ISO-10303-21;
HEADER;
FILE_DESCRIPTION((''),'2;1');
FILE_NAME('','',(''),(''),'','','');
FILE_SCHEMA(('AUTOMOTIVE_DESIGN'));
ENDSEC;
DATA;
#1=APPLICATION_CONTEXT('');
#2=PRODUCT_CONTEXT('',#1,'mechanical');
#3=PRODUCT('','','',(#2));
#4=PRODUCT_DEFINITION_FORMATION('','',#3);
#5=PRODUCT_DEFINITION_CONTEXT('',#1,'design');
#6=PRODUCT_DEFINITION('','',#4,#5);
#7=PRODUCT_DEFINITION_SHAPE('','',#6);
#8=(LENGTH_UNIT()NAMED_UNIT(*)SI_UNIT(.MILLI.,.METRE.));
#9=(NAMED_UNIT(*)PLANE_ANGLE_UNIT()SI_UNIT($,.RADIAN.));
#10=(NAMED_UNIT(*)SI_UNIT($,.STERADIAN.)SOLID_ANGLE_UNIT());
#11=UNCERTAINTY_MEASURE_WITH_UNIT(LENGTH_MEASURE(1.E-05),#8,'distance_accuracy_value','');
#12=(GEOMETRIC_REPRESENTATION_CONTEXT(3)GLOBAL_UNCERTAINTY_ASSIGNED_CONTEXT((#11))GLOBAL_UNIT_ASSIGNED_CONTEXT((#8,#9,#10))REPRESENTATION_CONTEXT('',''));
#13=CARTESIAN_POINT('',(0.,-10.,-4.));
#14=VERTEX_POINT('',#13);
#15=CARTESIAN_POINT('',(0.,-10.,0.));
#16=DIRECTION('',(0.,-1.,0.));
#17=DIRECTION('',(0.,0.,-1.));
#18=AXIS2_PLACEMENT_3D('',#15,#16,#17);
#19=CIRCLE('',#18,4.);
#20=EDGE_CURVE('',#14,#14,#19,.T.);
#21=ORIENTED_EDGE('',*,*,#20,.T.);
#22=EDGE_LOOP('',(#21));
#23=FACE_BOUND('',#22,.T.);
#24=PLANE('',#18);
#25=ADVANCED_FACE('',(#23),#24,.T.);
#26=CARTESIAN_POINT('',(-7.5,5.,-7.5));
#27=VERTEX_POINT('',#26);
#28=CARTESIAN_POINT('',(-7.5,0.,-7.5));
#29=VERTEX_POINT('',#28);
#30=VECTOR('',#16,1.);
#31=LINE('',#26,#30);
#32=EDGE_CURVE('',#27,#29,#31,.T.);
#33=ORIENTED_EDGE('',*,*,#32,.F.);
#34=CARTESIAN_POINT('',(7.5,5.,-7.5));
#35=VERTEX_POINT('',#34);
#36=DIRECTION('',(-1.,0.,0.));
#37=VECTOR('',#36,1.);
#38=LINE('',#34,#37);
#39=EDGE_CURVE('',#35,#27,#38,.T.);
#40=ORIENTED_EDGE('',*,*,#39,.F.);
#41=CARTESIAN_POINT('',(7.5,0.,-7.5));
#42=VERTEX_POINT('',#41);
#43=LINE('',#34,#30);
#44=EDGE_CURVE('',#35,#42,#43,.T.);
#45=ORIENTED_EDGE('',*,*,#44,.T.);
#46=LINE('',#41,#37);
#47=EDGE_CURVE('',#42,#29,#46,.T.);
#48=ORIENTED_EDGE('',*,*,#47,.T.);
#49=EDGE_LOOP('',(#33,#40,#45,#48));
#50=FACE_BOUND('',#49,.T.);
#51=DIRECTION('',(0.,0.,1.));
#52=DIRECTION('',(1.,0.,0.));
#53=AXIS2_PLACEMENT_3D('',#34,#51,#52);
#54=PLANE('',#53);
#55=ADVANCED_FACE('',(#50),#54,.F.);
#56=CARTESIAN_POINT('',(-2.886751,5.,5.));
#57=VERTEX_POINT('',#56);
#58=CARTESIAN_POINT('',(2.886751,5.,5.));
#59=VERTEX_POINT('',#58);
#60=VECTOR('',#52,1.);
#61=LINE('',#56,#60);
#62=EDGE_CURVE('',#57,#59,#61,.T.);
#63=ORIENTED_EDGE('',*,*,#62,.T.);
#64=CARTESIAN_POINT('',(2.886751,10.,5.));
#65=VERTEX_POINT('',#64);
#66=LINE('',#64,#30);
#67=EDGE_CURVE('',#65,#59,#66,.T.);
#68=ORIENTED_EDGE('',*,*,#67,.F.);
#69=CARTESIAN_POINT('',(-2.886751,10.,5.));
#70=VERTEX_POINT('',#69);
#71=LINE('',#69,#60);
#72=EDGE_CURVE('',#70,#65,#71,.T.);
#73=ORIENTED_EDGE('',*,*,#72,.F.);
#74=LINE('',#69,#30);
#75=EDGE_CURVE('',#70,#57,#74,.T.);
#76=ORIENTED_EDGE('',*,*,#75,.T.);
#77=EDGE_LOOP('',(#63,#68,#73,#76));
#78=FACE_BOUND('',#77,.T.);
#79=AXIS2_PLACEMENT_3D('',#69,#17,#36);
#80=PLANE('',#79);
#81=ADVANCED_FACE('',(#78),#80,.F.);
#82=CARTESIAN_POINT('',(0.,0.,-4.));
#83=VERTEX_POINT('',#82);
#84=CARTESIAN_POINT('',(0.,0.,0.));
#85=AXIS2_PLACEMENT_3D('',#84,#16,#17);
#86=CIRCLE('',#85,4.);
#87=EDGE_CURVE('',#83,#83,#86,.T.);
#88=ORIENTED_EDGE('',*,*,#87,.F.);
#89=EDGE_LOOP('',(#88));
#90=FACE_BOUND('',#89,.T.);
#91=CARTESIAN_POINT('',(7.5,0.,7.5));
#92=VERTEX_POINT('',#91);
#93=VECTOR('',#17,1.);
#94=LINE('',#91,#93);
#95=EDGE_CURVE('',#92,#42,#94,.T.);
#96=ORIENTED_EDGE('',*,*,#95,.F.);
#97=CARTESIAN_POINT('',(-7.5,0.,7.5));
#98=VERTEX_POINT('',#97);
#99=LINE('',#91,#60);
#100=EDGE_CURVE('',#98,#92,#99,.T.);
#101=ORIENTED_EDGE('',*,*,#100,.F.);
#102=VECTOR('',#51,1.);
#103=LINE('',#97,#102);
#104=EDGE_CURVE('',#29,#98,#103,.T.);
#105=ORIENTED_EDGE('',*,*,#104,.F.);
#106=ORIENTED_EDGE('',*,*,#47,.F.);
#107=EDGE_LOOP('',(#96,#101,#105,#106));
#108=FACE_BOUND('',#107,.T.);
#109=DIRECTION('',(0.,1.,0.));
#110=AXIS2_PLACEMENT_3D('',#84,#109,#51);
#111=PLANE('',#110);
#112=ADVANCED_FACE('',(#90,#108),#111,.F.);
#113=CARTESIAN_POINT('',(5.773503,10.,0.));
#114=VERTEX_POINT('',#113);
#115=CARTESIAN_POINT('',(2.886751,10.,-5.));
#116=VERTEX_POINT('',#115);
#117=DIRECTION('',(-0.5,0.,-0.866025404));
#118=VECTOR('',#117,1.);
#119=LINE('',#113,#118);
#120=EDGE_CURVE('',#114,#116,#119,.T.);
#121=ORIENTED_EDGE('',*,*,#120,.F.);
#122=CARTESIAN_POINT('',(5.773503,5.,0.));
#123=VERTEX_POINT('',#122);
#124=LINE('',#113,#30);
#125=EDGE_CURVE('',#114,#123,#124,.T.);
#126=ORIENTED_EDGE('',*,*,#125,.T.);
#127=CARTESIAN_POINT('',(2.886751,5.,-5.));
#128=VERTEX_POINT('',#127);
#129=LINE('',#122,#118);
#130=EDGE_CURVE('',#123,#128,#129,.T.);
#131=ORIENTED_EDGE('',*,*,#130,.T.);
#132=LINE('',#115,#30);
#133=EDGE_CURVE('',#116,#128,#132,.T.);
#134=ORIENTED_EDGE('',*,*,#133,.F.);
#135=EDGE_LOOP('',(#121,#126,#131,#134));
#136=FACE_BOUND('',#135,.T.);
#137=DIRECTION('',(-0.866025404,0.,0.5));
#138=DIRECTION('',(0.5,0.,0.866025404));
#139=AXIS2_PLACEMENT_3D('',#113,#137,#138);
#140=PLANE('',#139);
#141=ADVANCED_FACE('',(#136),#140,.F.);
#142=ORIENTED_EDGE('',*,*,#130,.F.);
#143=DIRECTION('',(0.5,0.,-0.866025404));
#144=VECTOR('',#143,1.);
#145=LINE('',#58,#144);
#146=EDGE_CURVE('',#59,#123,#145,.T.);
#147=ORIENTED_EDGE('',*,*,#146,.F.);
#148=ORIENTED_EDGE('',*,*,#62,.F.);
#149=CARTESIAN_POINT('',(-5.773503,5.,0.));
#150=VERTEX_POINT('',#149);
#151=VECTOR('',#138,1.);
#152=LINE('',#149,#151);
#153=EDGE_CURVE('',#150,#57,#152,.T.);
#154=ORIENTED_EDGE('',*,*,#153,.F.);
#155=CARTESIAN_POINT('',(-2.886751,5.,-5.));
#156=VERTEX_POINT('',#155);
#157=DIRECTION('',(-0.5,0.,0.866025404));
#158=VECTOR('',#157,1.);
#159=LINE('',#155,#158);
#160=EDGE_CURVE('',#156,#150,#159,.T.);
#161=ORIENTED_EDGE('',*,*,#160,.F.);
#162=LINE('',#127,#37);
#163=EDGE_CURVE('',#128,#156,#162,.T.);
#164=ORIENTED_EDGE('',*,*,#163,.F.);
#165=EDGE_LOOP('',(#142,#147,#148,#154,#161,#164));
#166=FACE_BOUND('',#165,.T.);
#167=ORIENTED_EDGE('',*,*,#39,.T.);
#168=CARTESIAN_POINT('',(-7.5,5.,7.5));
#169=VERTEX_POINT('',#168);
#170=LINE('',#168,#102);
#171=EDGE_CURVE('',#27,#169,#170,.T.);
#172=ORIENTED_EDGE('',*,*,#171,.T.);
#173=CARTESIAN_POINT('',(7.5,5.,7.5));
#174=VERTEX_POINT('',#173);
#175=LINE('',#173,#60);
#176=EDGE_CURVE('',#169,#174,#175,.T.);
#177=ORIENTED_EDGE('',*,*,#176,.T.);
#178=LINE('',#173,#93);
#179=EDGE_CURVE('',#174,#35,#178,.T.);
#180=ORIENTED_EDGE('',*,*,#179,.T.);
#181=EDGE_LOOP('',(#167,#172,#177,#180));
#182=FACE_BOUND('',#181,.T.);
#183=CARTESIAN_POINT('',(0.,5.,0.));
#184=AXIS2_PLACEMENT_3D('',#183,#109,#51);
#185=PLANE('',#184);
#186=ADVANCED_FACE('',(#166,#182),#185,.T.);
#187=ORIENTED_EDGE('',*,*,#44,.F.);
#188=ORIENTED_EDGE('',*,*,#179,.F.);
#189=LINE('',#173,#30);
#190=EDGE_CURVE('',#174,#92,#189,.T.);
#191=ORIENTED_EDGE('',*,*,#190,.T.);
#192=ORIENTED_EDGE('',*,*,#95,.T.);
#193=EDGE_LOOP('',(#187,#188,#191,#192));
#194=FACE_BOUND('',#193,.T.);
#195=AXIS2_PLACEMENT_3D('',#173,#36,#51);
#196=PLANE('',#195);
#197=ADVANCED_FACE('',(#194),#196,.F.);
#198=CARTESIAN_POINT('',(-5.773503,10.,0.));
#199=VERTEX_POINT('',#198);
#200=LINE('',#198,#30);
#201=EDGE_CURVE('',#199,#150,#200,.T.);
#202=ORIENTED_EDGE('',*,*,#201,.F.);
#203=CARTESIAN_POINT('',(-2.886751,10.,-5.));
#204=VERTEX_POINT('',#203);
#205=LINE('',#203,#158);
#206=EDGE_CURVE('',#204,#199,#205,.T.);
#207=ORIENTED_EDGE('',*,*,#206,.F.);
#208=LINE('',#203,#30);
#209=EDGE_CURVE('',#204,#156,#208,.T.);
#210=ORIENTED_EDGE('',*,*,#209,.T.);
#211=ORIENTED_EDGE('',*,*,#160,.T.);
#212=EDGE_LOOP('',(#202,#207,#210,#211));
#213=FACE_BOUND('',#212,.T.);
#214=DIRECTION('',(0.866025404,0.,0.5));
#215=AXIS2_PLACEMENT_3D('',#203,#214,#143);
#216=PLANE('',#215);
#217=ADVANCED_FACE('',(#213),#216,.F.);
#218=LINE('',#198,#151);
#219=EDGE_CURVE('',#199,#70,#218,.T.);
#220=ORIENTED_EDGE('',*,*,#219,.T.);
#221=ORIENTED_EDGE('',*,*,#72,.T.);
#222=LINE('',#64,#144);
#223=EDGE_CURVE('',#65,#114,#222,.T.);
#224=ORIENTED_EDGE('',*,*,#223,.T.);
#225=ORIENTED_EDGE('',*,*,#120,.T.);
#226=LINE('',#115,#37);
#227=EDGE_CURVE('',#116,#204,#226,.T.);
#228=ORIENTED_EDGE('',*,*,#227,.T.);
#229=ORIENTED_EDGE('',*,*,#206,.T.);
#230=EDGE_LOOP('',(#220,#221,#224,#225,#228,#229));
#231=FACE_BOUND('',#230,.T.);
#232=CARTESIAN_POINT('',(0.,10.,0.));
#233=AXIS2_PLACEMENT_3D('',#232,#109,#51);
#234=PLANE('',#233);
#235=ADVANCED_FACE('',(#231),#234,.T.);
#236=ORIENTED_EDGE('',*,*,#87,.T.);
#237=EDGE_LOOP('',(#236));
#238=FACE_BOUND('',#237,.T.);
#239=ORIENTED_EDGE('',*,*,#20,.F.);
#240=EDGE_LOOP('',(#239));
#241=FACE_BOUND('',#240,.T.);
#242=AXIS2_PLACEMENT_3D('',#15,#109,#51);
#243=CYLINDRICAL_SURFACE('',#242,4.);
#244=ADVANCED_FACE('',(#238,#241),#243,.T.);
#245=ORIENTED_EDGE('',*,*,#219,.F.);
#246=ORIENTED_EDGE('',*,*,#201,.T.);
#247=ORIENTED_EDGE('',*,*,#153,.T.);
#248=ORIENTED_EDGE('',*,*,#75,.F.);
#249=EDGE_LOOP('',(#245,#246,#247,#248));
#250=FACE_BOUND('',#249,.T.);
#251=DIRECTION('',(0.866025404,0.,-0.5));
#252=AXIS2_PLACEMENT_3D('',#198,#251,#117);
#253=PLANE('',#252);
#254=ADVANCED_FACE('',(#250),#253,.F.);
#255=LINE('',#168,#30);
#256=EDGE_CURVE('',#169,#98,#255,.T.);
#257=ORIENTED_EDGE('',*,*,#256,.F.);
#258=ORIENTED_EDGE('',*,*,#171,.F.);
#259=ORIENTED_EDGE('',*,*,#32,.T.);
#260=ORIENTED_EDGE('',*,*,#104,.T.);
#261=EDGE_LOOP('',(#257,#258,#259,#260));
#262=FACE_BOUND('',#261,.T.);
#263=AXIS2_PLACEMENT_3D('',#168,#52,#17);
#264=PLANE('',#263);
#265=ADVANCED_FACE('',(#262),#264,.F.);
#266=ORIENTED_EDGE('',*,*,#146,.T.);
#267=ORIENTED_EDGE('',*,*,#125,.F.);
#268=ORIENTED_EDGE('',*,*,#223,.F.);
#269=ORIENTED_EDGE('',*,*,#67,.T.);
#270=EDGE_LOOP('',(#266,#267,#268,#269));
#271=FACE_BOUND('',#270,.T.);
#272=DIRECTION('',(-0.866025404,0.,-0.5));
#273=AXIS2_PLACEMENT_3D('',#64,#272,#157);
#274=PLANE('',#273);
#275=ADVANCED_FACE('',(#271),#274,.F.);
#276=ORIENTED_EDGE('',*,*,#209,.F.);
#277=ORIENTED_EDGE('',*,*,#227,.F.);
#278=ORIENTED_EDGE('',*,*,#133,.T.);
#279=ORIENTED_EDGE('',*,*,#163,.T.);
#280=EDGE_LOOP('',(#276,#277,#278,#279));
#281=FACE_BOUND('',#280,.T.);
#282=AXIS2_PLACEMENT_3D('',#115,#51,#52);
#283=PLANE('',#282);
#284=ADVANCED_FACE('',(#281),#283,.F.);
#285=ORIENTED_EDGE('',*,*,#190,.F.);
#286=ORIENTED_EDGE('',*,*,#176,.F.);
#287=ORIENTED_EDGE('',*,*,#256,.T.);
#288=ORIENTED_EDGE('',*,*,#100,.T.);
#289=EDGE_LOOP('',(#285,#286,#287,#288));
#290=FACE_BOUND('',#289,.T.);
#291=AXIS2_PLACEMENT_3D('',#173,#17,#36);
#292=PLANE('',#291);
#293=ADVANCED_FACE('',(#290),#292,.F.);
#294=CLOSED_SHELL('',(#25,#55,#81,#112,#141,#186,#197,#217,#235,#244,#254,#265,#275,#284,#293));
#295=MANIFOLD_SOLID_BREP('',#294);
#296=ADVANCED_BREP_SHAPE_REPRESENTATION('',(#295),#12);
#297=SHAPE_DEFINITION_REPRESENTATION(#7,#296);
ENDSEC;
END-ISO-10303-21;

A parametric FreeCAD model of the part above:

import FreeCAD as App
import Part
import Sketcher
Q = App.Units.Quantity

doc = App.newDocument("Part")
body = doc.addObject("PartDesign::Body", "Body")

# Sketch on XZ plane
sketch1 = body.newObject("Sketcher::SketchObject", "Sketch")
sketch1.AttachmentSupport = (doc.getObject("XZ_Plane"), [""])
sketch1.MapMode = "FlatFace"
sketch1.addGeometry([
    Part.LineSegment(App.Vector(-8, -8, 0), App.Vector(-8, 8, 0)),
    Part.LineSegment(App.Vector(-8, 8, 0), App.Vector(8, 8, 0)),
    Part.LineSegment(App.Vector(8, 8, 0), App.Vector(8, -8, 0)),
    Part.LineSegment(App.Vector(8, -8, 0), App.Vector(-8, -8, 0)),
], False)
sketch1.addConstraint([
    Sketcher.Constraint("Coincident", 0, 2, 1, 1),
    Sketcher.Constraint("Coincident", 1, 2, 2, 1),
    Sketcher.Constraint("Coincident", 2, 2, 3, 1),
    Sketcher.Constraint("Coincident", 3, 2, 0, 1),
    Sketcher.Constraint("Vertical", 0),
    Sketcher.Constraint("Horizontal", 1),
    Sketcher.Constraint("Vertical", 2),
    Sketcher.Constraint("Horizontal", 3),
    Sketcher.Constraint("Symmetric", 0, 2, 2, 2, -1, 1),
    Sketcher.Constraint("Equal", 3, 0),
    Sketcher.Constraint("DistanceX", 1, 1, 1, 2, Q("15 mm")),
])
pad1 = body.newObject("PartDesign::Pad", "Pad")
pad1.Profile = sketch1
pad1.Length = 5
pad1.Reversed = True

# Sketch on XZ plane
sketch2 = body.newObject("Sketcher::SketchObject", "Sketch001")
sketch2.AttachmentSupport = (doc.getObject("XZ_Plane"), [""])
sketch2.MapMode = "FlatFace"
sketch2.AttachmentOffset = App.Placement(App.Vector(0, 0, -5), App.Rotation())
sketch2.addGeometry([
    Part.LineSegment(App.Vector(-3, -5, 0), App.Vector(-6, 0, 0)),  # 0
    Part.LineSegment(App.Vector(-6, 0, 0), App.Vector(-3, 5, 0)),  # 1
    Part.LineSegment(App.Vector(-3, 5, 0), App.Vector(3, 5, 0)),  # 2
    Part.LineSegment(App.Vector(3, 5, 0), App.Vector(6, 0, 0)),  # 3
    Part.LineSegment(App.Vector(6, 0, 0), App.Vector(3, -5, 0)),  # 4
    Part.LineSegment(App.Vector(3, -5, 0), App.Vector(-3, -5, 0)),  # 5
], False)
sketch2.addConstraint([
    Sketcher.Constraint("Coincident", 0, 2, 1, 1),
    Sketcher.Constraint("Coincident", 1, 2, 2, 1),
    Sketcher.Constraint("Coincident", 2, 2, 3, 1),
    Sketcher.Constraint("Coincident", 3, 2, 4, 1),
    Sketcher.Constraint("Coincident", 4, 2, 5, 1),
    Sketcher.Constraint("Coincident", 5, 2, 0, 1),
    Sketcher.Constraint("Horizontal", 2),
    Sketcher.Constraint("Horizontal", 5),
    Sketcher.Constraint("Symmetric", 0, 2, 3, 2, -1, 1),
    Sketcher.Constraint("Symmetric", 1, 2, 4, 2, -1, 1),
    Sketcher.Constraint("PointOnObject", 0, 2, -1),
    Sketcher.Constraint("Parallel", 0, 3),
    Sketcher.Constraint("Vertical", 2, 2, 4, 2),
    Sketcher.Constraint("Angle", 0, Q("120 deg")),
    Sketcher.Constraint("DistanceY", -1, 1, 1, 2, Q("5 mm")),
    Sketcher.Constraint("DistanceX", 2, 1, 2, 2, Q("5.773503 mm")),
])
pad2 = body.newObject("PartDesign::Pad", "Pad001")
pad2.Profile = sketch2
pad2.Length = 5
pad2.Reversed = True

# Sketch on XZ plane
sketch3 = body.newObject("Sketcher::SketchObject", "Sketch002")
sketch3.AttachmentSupport = (doc.getObject("XZ_Plane"), [""])
sketch3.MapMode = "FlatFace"
sketch3.addGeometry(Part.Circle(App.Vector(0, 0, 0), App.Vector(0, 0, 1), 4), False)
sketch3.addConstraint([
    Sketcher.Constraint("Coincident", 0, 3, -1, 1),
    Sketcher.Constraint("Diameter", 0, Q("8 mm")),
])
pad3 = body.newObject("PartDesign::Pad", "Pad002")
pad3.Profile = sketch3
pad3.Length = 10

doc.recompute()
